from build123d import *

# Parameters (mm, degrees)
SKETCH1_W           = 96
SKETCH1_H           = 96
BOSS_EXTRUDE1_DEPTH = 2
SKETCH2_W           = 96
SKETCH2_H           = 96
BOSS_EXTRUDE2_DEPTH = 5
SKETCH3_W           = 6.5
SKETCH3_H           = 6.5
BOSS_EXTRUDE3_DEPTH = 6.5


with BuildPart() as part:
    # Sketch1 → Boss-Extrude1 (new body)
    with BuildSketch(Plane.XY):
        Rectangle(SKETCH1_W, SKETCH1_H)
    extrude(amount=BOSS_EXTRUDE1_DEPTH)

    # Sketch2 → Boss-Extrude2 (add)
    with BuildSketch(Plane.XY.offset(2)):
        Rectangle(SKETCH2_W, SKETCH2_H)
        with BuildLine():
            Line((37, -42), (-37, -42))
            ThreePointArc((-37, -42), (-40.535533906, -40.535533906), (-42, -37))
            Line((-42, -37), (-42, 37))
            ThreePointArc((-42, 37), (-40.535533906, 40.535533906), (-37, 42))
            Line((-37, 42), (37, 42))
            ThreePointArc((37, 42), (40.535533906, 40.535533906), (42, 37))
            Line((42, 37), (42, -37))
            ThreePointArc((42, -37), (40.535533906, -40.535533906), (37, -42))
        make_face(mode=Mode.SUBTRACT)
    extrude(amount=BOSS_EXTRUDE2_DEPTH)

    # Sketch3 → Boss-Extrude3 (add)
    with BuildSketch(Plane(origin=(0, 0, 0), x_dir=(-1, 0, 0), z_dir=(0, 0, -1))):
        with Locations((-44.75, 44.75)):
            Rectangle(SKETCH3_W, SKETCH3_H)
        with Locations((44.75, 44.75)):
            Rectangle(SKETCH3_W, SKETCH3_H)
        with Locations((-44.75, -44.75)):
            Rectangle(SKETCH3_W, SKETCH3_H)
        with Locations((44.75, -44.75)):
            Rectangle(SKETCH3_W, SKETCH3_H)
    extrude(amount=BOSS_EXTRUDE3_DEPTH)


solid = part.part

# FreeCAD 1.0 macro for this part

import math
import FreeCAD as App
import Part
import Sketcher
from FreeCAD import Vector
Q = App.Units.Quantity

doc = App.newDocument("Part")
body = doc.addObject("PartDesign::Body", "Body")

# Sketch on XY plane
sketch1 = body.newObject("Sketcher::SketchObject", "Sketch")
sketch1.AttachmentSupport = (doc.getObject("XY_Plane"), [""])
sketch1.MapMode = "FlatFace"
sketch1.addGeometry(Part.LineSegment(Vector(-48, 48, 0), Vector(-48, -48, 0)), False)
sketch1.addGeometry(Part.LineSegment(Vector(-48, -48, 0), Vector(48, -48, 0)), False)
sketch1.addGeometry(Part.LineSegment(Vector(48, -48, 0), Vector(48, 48, 0)), False)
sketch1.addGeometry(Part.LineSegment(Vector(48, 48, 0), Vector(-48, 48, 0)), False)
sketch1.addConstraint(Sketcher.Constraint("Coincident", 0, 2, 1, 1))
sketch1.addConstraint(Sketcher.Constraint("Coincident", 1, 2, 2, 1))
sketch1.addConstraint(Sketcher.Constraint("Coincident", 2, 2, 3, 1))
sketch1.addConstraint(Sketcher.Constraint("Coincident", 3, 2, 0, 1))
sketch1.addConstraint(Sketcher.Constraint("Vertical", 0))
sketch1.addConstraint(Sketcher.Constraint("Horizontal", 1))
sketch1.addConstraint(Sketcher.Constraint("Vertical", 2))
sketch1.addConstraint(Sketcher.Constraint("Horizontal", 3))
sketch1.addConstraint(Sketcher.Constraint("Symmetric", 0, 2, 2, 2, -1, 1))
sketch1.addConstraint(Sketcher.Constraint("Equal", 3, 0))
sketch1.addConstraint(Sketcher.Constraint("DistanceX", 1, 1, 1, 2, Q("96 mm")))
pad1 = body.newObject("PartDesign::Pad", "Pad")
pad1.Profile = sketch1
pad1.Length = 2

# Sketch on XY plane
sketch2 = body.newObject("Sketcher::SketchObject", "Sketch001")
sketch2.AttachmentSupport = (doc.getObject("XY_Plane"), [""])
sketch2.MapMode = "FlatFace"
sketch2.AttachmentOffset = App.Placement(Vector(0, 0, 2), App.Rotation())
sketch2.addGeometry(Part.LineSegment(Vector(-48, 48, 0), Vector(-48, -48, 0)), False)
sketch2.addGeometry(Part.LineSegment(Vector(-48, -48, 0), Vector(48, -48, 0)), False)
sketch2.addGeometry(Part.LineSegment(Vector(48, -48, 0), Vector(48, 48, 0)), False)
sketch2.addGeometry(Part.LineSegment(Vector(48, 48, 0), Vector(-48, 48, 0)), False)
sketch2.addGeometry(Part.ArcOfCircle(Part.Circle(Vector(37, -37, 0), Vector(0, 0, 1), 5), math.radians(-90), math.radians(0)), False)
sketch2.addGeometry(Part.LineSegment(Vector(37, -42, 0), Vector(-37, -42, 0)), False)
sketch2.addGeometry(Part.ArcOfCircle(Part.Circle(Vector(-37, -37, 0), Vector(0, 0, 1), 5), math.radians(180), math.radians(270)), False)
sketch2.addGeometry(Part.LineSegment(Vector(-42, -37, 0), Vector(-42, 37, 0)), False)
sketch2.addGeometry(Part.ArcOfCircle(Part.Circle(Vector(-37, 37, 0), Vector(0, 0, 1), 5), math.radians(90), math.radians(180)), False)
sketch2.addGeometry(Part.LineSegment(Vector(-37, 42, 0), Vector(37, 42, 0)), False)
sketch2.addGeometry(Part.ArcOfCircle(Part.Circle(Vector(37, 37, 0), Vector(0, 0, 1), 5), math.radians(0), math.radians(90)), False)
sketch2.addGeometry(Part.LineSegment(Vector(42, 37, 0), Vector(42, -37, 0)), False)
sketch2.addConstraint(Sketcher.Constraint("Coincident", 0, 2, 1, 1))
sketch2.addConstraint(Sketcher.Constraint("Coincident", 1, 2, 2, 1))
sketch2.addConstraint(Sketcher.Constraint("Coincident", 2, 2, 3, 1))
sketch2.addConstraint(Sketcher.Constraint("Coincident", 3, 2, 0, 1))
sketch2.addConstraint(Sketcher.Constraint("Tangent", 4, 1, 5, 1))
sketch2.addConstraint(Sketcher.Constraint("Tangent", 5, 2, 6, 2))
sketch2.addConstraint(Sketcher.Constraint("Tangent", 6, 1, 7, 1))
sketch2.addConstraint(Sketcher.Constraint("Tangent", 7, 2, 8, 2))
sketch2.addConstraint(Sketcher.Constraint("Tangent", 8, 1, 9, 1))
sketch2.addConstraint(Sketcher.Constraint("Tangent", 9, 2, 10, 2))
sketch2.addConstraint(Sketcher.Constraint("Tangent", 10, 1, 11, 1))
sketch2.addConstraint(Sketcher.Constraint("Tangent", 11, 2, 4, 2))
sketch2.addConstraint(Sketcher.Constraint("Vertical", 0))
sketch2.addConstraint(Sketcher.Constraint("Horizontal", 1))
sketch2.addConstraint(Sketcher.Constraint("Vertical", 2))
sketch2.addConstraint(Sketcher.Constraint("Horizontal", 3))
sketch2.addConstraint(Sketcher.Constraint("Horizontal", 5))
sketch2.addConstraint(Sketcher.Constraint("Vertical", 7))
sketch2.addConstraint(Sketcher.Constraint("Horizontal", 9))
sketch2.addConstraint(Sketcher.Constraint("Vertical", 11))
sketch2.addConstraint(Sketcher.Constraint("Equal", 4, 6))
sketch2.addConstraint(Sketcher.Constraint("Equal", 6, 8))
sketch2.addConstraint(Sketcher.Constraint("Equal", 8, 10))
sketch2.addConstraint(Sketcher.Constraint("Symmetric", 4, 3, 8, 3, -1, 1))
sketch2.addConstraint(Sketcher.Constraint("Symmetric", 0, 2, 2, 2, -1, 1))
sketch2.addConstraint(Sketcher.Constraint("Equal", 3, 0))
sketch2.addConstraint(Sketcher.Constraint("Equal", 9, 7))
sketch2.addConstraint(Sketcher.Constraint("Radius", 4, Q("5 mm")))
sketch2.addConstraint(Sketcher.Constraint("DistanceX", 1, 1, 1, 2, Q("96 mm")))
sketch2.addConstraint(Sketcher.Constraint("DistanceX", 5, 2, 5, 1, Q("74 mm")))
pad2 = body.newObject("PartDesign::Pad", "Pad001")
pad2.Profile = sketch2
pad2.Length = 5

# Sketch on XY plane
sketch3 = body.newObject("Sketcher::SketchObject", "Sketch002")
sketch3.AttachmentSupport = (doc.getObject("XY_Plane"), [""])
sketch3.MapMode = "FlatFace"
sketch3.addGeometry(Part.LineSegment(Vector(48, 48, 0), Vector(48, 41.5, 0)), False)
sketch3.addGeometry(Part.LineSegment(Vector(48, 41.5, 0), Vector(41.5, 41.5, 0)), False)
sketch3.addGeometry(Part.LineSegment(Vector(41.5, 41.5, 0), Vector(41.5, 48, 0)), False)
sketch3.addGeometry(Part.LineSegment(Vector(41.5, 48, 0), Vector(48, 48, 0)), False)
sketch3.addGeometry(Part.LineSegment(Vector(-41.5, 48, 0), Vector(-41.5, 41.5, 0)), False)
sketch3.addGeometry(Part.LineSegment(Vector(-41.5, 41.5, 0), Vector(-48, 41.5, 0)), False)
sketch3.addGeometry(Part.LineSegment(Vector(-48, 41.5, 0), Vector(-48, 48, 0)), False)
sketch3.addGeometry(Part.LineSegment(Vector(-48, 48, 0), Vector(-41.5, 48, 0)), False)
sketch3.addGeometry(Part.LineSegment(Vector(48, -41.5, 0), Vector(48, -48, 0)), False)
sketch3.addGeometry(Part.LineSegment(Vector(48, -48, 0), Vector(41.5, -48, 0)), False)
sketch3.addGeometry(Part.LineSegment(Vector(41.5, -48, 0), Vector(41.5, -41.5, 0)), False)
sketch3.addGeometry(Part.LineSegment(Vector(41.5, -41.5, 0), Vector(48, -41.5, 0)), False)
sketch3.addGeometry(Part.LineSegment(Vector(-41.5, -41.5, 0), Vector(-41.5, -48, 0)), False)
sketch3.addGeometry(Part.LineSegment(Vector(-41.5, -48, 0), Vector(-48, -48, 0)), False)
sketch3.addGeometry(Part.LineSegment(Vector(-48, -48, 0), Vector(-48, -41.5, 0)), False)
sketch3.addGeometry(Part.LineSegment(Vector(-48, -41.5, 0), Vector(-41.5, -41.5, 0)), False)
sketch3.addConstraint(Sketcher.Constraint("Coincident", 0, 2, 1, 1))
sketch3.addConstraint(Sketcher.Constraint("Coincident", 1, 2, 2, 1))
sketch3.addConstraint(Sketcher.Constraint("Coincident", 2, 2, 3, 1))
sketch3.addConstraint(Sketcher.Constraint("Coincident", 3, 2, 0, 1))
sketch3.addConstraint(Sketcher.Constraint("Coincident", 4, 2, 5, 1))
sketch3.addConstraint(Sketcher.Constraint("Coincident", 5, 2, 6, 1))
sketch3.addConstraint(Sketcher.Constraint("Coincident", 6, 2, 7, 1))
sketch3.addConstraint(Sketcher.Constraint("Coincident", 7, 2, 4, 1))
sketch3.addConstraint(Sketcher.Constraint("Coincident", 8, 2, 9, 1))
sketch3.addConstraint(Sketcher.Constraint("Coincident", 9, 2, 10, 1))
sketch3.addConstraint(Sketcher.Constraint("Coincident", 10, 2, 11, 1))
sketch3.addConstraint(Sketcher.Constraint("Coincident", 11, 2, 8, 1))
sketch3.addConstraint(Sketcher.Constraint("Coincident", 12, 2, 13, 1))
sketch3.addConstraint(Sketcher.Constraint("Coincident", 13, 2, 14, 1))
sketch3.addConstraint(Sketcher.Constraint("Coincident", 14, 2, 15, 1))
sketch3.addConstraint(Sketcher.Constraint("Coincident", 15, 2, 12, 1))
sketch3.addConstraint(Sketcher.Constraint("Vertical", 0))
sketch3.addConstraint(Sketcher.Constraint("Horizontal", 1))
sketch3.addConstraint(Sketcher.Constraint("Vertical", 2))
sketch3.addConstraint(Sketcher.Constraint("Horizontal", 3))
sketch3.addConstraint(Sketcher.Constraint("Vertical", 4))
sketch3.addConstraint(Sketcher.Constraint("Horizontal", 5))
sketch3.addConstraint(Sketcher.Constraint("Vertical", 6))
sketch3.addConstraint(Sketcher.Constraint("Horizontal", 7))
sketch3.addConstraint(Sketcher.Constraint("Vertical", 8))
sketch3.addConstraint(Sketcher.Constraint("Horizontal", 9))
sketch3.addConstraint(Sketcher.Constraint("Vertical", 10))
sketch3.addConstraint(Sketcher.Constraint("Horizontal", 11))
sketch3.addConstraint(Sketcher.Constraint("Vertical", 12))
sketch3.addConstraint(Sketcher.Constraint("Horizontal", 13))
sketch3.addConstraint(Sketcher.Constraint("Vertical", 14))
sketch3.addConstraint(Sketcher.Constraint("Horizontal", 15))
sketch3.addConstraint(Sketcher.Constraint("Symmetric", 6, 2, 8, 2, -1, 1))
sketch3.addConstraint(Sketcher.Constraint("Symmetric", 4, 2, 10, 2, -1, 1))
sketch3.addConstraint(Sketcher.Constraint("Symmetric", 2, 2, 12, 2, -1, 1))
sketch3.addConstraint(Sketcher.Constraint("Symmetric", 0, 2, 14, 2, -1, 1))
sketch3.addConstraint(Sketcher.Constraint("Symmetric", 1, 2, 4, 2, -2))
sketch3.addConstraint(Sketcher.Constraint("Symmetric", 3, 2, 6, 2, -2))
sketch3.addConstraint(Sketcher.Constraint("Equal", 15, 0))
sketch3.addConstraint(Sketcher.Constraint("DistanceX", 1, 2, 1, 1, Q("6.5 mm")))
sketch3.addConstraint(Sketcher.Constraint("DistanceX", -1, 1, 0, 2, Q("48 mm")))
sketch3.addConstraint(Sketcher.Constraint("DistanceY", -1, 1, 2, 2, Q("48 mm")))
pad3 = body.newObject("PartDesign::Pad", "Pad002")
pad3.Profile = sketch3
pad3.Length = 6.5
pad3.Reversed = True

doc.recompute()
